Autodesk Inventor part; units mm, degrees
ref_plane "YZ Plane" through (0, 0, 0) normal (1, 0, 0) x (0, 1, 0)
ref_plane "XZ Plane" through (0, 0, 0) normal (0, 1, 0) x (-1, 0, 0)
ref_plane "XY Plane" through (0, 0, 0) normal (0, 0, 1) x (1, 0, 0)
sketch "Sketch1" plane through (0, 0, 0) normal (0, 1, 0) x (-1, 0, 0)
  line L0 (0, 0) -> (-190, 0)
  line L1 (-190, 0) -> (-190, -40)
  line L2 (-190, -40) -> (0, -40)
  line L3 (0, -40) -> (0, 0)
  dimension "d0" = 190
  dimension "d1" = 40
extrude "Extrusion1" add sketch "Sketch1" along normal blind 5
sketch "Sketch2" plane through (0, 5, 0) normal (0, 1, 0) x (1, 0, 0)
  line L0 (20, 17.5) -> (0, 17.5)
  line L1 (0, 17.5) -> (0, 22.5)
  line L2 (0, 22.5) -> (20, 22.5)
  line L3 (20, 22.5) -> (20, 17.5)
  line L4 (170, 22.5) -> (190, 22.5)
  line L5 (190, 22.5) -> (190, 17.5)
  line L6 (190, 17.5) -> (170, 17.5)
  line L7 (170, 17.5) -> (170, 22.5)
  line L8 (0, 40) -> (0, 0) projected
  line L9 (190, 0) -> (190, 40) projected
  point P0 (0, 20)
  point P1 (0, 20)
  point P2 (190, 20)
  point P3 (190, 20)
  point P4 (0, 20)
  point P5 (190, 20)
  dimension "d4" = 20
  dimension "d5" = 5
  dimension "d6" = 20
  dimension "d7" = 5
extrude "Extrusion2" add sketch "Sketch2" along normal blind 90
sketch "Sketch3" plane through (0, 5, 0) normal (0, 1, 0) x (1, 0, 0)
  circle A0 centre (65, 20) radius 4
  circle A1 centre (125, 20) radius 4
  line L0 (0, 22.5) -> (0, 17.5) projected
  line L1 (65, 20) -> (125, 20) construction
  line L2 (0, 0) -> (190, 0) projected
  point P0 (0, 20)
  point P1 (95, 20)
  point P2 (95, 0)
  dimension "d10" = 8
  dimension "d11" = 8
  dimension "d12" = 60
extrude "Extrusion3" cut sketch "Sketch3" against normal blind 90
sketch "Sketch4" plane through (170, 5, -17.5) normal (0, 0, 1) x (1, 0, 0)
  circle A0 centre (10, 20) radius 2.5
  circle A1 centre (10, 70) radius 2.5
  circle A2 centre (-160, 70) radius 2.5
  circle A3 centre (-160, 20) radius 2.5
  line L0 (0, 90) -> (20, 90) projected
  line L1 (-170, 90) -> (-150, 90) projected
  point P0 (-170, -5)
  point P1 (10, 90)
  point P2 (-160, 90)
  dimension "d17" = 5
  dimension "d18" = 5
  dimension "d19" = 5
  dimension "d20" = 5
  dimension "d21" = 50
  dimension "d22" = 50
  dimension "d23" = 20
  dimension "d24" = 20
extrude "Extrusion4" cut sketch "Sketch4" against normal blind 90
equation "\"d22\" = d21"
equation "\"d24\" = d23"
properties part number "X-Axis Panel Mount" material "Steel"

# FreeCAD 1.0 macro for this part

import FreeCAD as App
import Part
import Sketcher

V = App.Vector
Q = App.Units.Quantity

doc = App.newDocument("Part")
body = doc.addObject("PartDesign::Body", "Body")

# Sketch on XZ plane
sketch1 = doc.addObject("Sketcher::SketchObject", "Sketch")
body.addObject(sketch1)
sketch1.AttachmentSupport = (doc.XZ_Plane, [""])
sketch1.MapMode = "FlatFace"
sketch1.addGeometry(Part.LineSegment(V(0, -40, 0), V(0, 0, 0)), False)
sketch1.addGeometry(Part.LineSegment(V(0, 0, 0), V(190, 0, 0)), False)
sketch1.addGeometry(Part.LineSegment(V(190, 0, 0), V(190, -40, 0)), False)
sketch1.addGeometry(Part.LineSegment(V(190, -40, 0), V(0, -40, 0)), False)
sketch1.addConstraint(Sketcher.Constraint("Coincident", 0, 2, 1, 1))
sketch1.addConstraint(Sketcher.Constraint("Coincident", 1, 2, 2, 1))
sketch1.addConstraint(Sketcher.Constraint("Coincident", 2, 2, 3, 1))
sketch1.addConstraint(Sketcher.Constraint("Coincident", 3, 2, 0, 1))
sketch1.addConstraint(Sketcher.Constraint("Vertical", 0))
sketch1.addConstraint(Sketcher.Constraint("Horizontal", 1))
sketch1.addConstraint(Sketcher.Constraint("Vertical", 2))
sketch1.addConstraint(Sketcher.Constraint("Horizontal", 3))
sketch1.addConstraint(Sketcher.Constraint("Coincident", 0, 2, -1, 1))
sketch1.addConstraint(Sketcher.Constraint("DistanceX", 1, 1, 1, 2, Q("190 mm")))
sketch1.addConstraint(Sketcher.Constraint("DistanceY", 0, 1, 0, 2, Q("40 mm")))
pad1 = doc.addObject("PartDesign::Pad", "Pad")
body.addObject(pad1)
pad1.Profile = sketch1
pad1.Length = 5
pad1.Reversed = True

# Sketch on XZ plane
sketch2 = doc.addObject("Sketcher::SketchObject", "Sketch001")
body.addObject(sketch2)
sketch2.AttachmentSupport = (doc.XZ_Plane, [""])
sketch2.MapMode = "FlatFace"
sketch2.AttachmentOffset = App.Placement(V(0, 0, -5), App.Rotation())
sketch2.addGeometry(Part.LineSegment(V(0, -18, 0), V(20, -18, 0)), False)
sketch2.addGeometry(Part.LineSegment(V(20, -18, 0), V(20, -22, 0)), False)
sketch2.addGeometry(Part.LineSegment(V(20, -22, 0), V(0, -22, 0)), False)
sketch2.addGeometry(Part.LineSegment(V(0, -22, 0), V(0, -18, 0)), False)
sketch2.addGeometry(Part.LineSegment(V(190, -22, 0), V(170, -22, 0)), False)
sketch2.addGeometry(Part.LineSegment(V(170, -22, 0), V(170, -18, 0)), False)
sketch2.addGeometry(Part.LineSegment(V(170, -18, 0), V(190, -18, 0)), False)
sketch2.addGeometry(Part.LineSegment(V(190, -18, 0), V(190, -22, 0)), False)
sketch2.addConstraint(Sketcher.Constraint("Coincident", 0, 2, 1, 1))
sketch2.addConstraint(Sketcher.Constraint("Coincident", 1, 2, 2, 1))
sketch2.addConstraint(Sketcher.Constraint("Coincident", 2, 2, 3, 1))
sketch2.addConstraint(Sketcher.Constraint("Coincident", 3, 2, 0, 1))
sketch2.addConstraint(Sketcher.Constraint("Coincident", 4, 2, 5, 1))
sketch2.addConstraint(Sketcher.Constraint("Coincident", 5, 2, 6, 1))
sketch2.addConstraint(Sketcher.Constraint("Coincident", 6, 2, 7, 1))
sketch2.addConstraint(Sketcher.Constraint("Coincident", 7, 2, 4, 1))
sketch2.addConstraint(Sketcher.Constraint("Horizontal", 0))
sketch2.addConstraint(Sketcher.Constraint("Vertical", 1))
sketch2.addConstraint(Sketcher.Constraint("Horizontal", 2))
sketch2.addConstraint(Sketcher.Constraint("Vertical", 3))
sketch2.addConstraint(Sketcher.Constraint("Horizontal", 4))
sketch2.addConstraint(Sketcher.Constraint("Vertical", 5))
sketch2.addConstraint(Sketcher.Constraint("Horizontal", 6))
sketch2.addConstraint(Sketcher.Constraint("Vertical", 7))
sketch2.addConstraint(Sketcher.Constraint("PointOnObject", 2, 2, -2))
sketch2.addConstraint(Sketcher.Constraint("Horizontal", 2, 2, 4, 2))
sketch2.addConstraint(Sketcher.Constraint("Horizontal", 3, 2, 5, 2))
sketch2.addConstraint(Sketcher.Constraint("Equal", 2, 4))
sketch2.addConstraint(Sketcher.Constraint("DistanceX", 0, 1, 0, 2, Q("20 mm")))
sketch2.addConstraint(Sketcher.Constraint("DistanceY", 1, 2, 1, 1, Q("5 mm")))
sketch2.addConstraint(Sketcher.Constraint("DistanceX", -1, 1, 4, 2, Q("170 mm")))
sketch2.addConstraint(Sketcher.Constraint("DistanceY", 0, 2, -1, 1, Q("17.5 mm")))
pad2 = doc.addObject("PartDesign::Pad", "Pad001")
body.addObject(pad2)
pad2.Profile = sketch2
pad2.Length = 90
pad2.Reversed = True

# Sketch on XZ plane
sketch3 = doc.addObject("Sketcher::SketchObject", "Sketch002")
body.addObject(sketch3)
sketch3.AttachmentSupport = (doc.XZ_Plane, [""])
sketch3.MapMode = "FlatFace"
sketch3.AttachmentOffset = App.Placement(V(0, 0, -5), App.Rotation())
sketch3.addGeometry(Part.Circle(V(65, -20, 0), V(0, 0, 1), 4), False)
sketch3.addGeometry(Part.Circle(V(125, -20, 0), V(0, 0, 1), 4), False)
sketch3.addConstraint(Sketcher.Constraint("Equal", 0, 1))
sketch3.addConstraint(Sketcher.Constraint("Horizontal", 0, 3, 1, 3))
sketch3.addConstraint(Sketcher.Constraint("Diameter", 0, Q("8 mm")))
sketch3.addConstraint(Sketcher.Constraint("DistanceX", 0, 3, 1, 3, Q("60 mm")))
sketch3.addConstraint(Sketcher.Constraint("DistanceX", -1, 1, 0, 3, Q("65 mm")))
sketch3.addConstraint(Sketcher.Constraint("DistanceY", 0, 3, -1, 1, Q("20 mm")))
pocket1 = doc.addObject("PartDesign::Pocket", "Pocket")
body.addObject(pocket1)
pocket1.Profile = sketch3
pocket1.Length = 90
pocket1.Reversed = True

# Sketch on XY plane
sketch4 = doc.addObject("Sketcher::SketchObject", "Sketch003")
body.addObject(sketch4)
sketch4.AttachmentSupport = (doc.XY_Plane, [""])
sketch4.MapMode = "FlatFace"
sketch4.AttachmentOffset = App.Placement(V(0, 0, -17.5), App.Rotation())
sketch4.addGeometry(Part.Circle(V(180, 25, 0), V(0, 0, 1), 2.5), False)
sketch4.addGeometry(Part.Circle(V(180, 75, 0), V(0, 0, 1), 2.5), False)
sketch4.addGeometry(Part.Circle(V(10, 75, 0), V(0, 0, 1), 2.5), False)
sketch4.addGeometry(Part.Circle(V(10, 25, 0), V(0, 0, 1), 2.5), False)
sketch4.addConstraint(Sketcher.Constraint("Equal", 0, 1))
sketch4.addConstraint(Sketcher.Constraint("Equal", 1, 2))
sketch4.addConstraint(Sketcher.Constraint("Equal", 2, 3))
sketch4.addConstraint(Sketcher.Constraint("Horizontal", 1, 3, 2, 3))
sketch4.addConstraint(Sketcher.Constraint("Horizontal", 0, 3, 3, 3))
sketch4.addConstraint(Sketcher.Constraint("Vertical", 0, 3, 1, 3))
sketch4.addConstraint(Sketcher.Constraint("Vertical", 2, 3, 3, 3))
sketch4.addConstraint(Sketcher.Constraint("Diameter", 0, Q("5 mm")))
sketch4.addConstraint(Sketcher.Constraint("DistanceY", 0, 3, 1, 3, Q("50 mm")))
sketch4.addConstraint(Sketcher.Constraint("DistanceX", -1, 1, 0, 3, Q("180 mm")))
sketch4.addConstraint(Sketcher.Constraint("DistanceY", -1, 1, 0, 3, Q("25 mm")))
sketch4.addConstraint(Sketcher.Constraint("DistanceX", -1, 1, 2, 3, Q("10 mm")))
pocket2 = doc.addObject("PartDesign::Pocket", "Pocket001")
body.addObject(pocket2)
pocket2.Profile = sketch4
pocket2.Length = 90

doc.recompute()
